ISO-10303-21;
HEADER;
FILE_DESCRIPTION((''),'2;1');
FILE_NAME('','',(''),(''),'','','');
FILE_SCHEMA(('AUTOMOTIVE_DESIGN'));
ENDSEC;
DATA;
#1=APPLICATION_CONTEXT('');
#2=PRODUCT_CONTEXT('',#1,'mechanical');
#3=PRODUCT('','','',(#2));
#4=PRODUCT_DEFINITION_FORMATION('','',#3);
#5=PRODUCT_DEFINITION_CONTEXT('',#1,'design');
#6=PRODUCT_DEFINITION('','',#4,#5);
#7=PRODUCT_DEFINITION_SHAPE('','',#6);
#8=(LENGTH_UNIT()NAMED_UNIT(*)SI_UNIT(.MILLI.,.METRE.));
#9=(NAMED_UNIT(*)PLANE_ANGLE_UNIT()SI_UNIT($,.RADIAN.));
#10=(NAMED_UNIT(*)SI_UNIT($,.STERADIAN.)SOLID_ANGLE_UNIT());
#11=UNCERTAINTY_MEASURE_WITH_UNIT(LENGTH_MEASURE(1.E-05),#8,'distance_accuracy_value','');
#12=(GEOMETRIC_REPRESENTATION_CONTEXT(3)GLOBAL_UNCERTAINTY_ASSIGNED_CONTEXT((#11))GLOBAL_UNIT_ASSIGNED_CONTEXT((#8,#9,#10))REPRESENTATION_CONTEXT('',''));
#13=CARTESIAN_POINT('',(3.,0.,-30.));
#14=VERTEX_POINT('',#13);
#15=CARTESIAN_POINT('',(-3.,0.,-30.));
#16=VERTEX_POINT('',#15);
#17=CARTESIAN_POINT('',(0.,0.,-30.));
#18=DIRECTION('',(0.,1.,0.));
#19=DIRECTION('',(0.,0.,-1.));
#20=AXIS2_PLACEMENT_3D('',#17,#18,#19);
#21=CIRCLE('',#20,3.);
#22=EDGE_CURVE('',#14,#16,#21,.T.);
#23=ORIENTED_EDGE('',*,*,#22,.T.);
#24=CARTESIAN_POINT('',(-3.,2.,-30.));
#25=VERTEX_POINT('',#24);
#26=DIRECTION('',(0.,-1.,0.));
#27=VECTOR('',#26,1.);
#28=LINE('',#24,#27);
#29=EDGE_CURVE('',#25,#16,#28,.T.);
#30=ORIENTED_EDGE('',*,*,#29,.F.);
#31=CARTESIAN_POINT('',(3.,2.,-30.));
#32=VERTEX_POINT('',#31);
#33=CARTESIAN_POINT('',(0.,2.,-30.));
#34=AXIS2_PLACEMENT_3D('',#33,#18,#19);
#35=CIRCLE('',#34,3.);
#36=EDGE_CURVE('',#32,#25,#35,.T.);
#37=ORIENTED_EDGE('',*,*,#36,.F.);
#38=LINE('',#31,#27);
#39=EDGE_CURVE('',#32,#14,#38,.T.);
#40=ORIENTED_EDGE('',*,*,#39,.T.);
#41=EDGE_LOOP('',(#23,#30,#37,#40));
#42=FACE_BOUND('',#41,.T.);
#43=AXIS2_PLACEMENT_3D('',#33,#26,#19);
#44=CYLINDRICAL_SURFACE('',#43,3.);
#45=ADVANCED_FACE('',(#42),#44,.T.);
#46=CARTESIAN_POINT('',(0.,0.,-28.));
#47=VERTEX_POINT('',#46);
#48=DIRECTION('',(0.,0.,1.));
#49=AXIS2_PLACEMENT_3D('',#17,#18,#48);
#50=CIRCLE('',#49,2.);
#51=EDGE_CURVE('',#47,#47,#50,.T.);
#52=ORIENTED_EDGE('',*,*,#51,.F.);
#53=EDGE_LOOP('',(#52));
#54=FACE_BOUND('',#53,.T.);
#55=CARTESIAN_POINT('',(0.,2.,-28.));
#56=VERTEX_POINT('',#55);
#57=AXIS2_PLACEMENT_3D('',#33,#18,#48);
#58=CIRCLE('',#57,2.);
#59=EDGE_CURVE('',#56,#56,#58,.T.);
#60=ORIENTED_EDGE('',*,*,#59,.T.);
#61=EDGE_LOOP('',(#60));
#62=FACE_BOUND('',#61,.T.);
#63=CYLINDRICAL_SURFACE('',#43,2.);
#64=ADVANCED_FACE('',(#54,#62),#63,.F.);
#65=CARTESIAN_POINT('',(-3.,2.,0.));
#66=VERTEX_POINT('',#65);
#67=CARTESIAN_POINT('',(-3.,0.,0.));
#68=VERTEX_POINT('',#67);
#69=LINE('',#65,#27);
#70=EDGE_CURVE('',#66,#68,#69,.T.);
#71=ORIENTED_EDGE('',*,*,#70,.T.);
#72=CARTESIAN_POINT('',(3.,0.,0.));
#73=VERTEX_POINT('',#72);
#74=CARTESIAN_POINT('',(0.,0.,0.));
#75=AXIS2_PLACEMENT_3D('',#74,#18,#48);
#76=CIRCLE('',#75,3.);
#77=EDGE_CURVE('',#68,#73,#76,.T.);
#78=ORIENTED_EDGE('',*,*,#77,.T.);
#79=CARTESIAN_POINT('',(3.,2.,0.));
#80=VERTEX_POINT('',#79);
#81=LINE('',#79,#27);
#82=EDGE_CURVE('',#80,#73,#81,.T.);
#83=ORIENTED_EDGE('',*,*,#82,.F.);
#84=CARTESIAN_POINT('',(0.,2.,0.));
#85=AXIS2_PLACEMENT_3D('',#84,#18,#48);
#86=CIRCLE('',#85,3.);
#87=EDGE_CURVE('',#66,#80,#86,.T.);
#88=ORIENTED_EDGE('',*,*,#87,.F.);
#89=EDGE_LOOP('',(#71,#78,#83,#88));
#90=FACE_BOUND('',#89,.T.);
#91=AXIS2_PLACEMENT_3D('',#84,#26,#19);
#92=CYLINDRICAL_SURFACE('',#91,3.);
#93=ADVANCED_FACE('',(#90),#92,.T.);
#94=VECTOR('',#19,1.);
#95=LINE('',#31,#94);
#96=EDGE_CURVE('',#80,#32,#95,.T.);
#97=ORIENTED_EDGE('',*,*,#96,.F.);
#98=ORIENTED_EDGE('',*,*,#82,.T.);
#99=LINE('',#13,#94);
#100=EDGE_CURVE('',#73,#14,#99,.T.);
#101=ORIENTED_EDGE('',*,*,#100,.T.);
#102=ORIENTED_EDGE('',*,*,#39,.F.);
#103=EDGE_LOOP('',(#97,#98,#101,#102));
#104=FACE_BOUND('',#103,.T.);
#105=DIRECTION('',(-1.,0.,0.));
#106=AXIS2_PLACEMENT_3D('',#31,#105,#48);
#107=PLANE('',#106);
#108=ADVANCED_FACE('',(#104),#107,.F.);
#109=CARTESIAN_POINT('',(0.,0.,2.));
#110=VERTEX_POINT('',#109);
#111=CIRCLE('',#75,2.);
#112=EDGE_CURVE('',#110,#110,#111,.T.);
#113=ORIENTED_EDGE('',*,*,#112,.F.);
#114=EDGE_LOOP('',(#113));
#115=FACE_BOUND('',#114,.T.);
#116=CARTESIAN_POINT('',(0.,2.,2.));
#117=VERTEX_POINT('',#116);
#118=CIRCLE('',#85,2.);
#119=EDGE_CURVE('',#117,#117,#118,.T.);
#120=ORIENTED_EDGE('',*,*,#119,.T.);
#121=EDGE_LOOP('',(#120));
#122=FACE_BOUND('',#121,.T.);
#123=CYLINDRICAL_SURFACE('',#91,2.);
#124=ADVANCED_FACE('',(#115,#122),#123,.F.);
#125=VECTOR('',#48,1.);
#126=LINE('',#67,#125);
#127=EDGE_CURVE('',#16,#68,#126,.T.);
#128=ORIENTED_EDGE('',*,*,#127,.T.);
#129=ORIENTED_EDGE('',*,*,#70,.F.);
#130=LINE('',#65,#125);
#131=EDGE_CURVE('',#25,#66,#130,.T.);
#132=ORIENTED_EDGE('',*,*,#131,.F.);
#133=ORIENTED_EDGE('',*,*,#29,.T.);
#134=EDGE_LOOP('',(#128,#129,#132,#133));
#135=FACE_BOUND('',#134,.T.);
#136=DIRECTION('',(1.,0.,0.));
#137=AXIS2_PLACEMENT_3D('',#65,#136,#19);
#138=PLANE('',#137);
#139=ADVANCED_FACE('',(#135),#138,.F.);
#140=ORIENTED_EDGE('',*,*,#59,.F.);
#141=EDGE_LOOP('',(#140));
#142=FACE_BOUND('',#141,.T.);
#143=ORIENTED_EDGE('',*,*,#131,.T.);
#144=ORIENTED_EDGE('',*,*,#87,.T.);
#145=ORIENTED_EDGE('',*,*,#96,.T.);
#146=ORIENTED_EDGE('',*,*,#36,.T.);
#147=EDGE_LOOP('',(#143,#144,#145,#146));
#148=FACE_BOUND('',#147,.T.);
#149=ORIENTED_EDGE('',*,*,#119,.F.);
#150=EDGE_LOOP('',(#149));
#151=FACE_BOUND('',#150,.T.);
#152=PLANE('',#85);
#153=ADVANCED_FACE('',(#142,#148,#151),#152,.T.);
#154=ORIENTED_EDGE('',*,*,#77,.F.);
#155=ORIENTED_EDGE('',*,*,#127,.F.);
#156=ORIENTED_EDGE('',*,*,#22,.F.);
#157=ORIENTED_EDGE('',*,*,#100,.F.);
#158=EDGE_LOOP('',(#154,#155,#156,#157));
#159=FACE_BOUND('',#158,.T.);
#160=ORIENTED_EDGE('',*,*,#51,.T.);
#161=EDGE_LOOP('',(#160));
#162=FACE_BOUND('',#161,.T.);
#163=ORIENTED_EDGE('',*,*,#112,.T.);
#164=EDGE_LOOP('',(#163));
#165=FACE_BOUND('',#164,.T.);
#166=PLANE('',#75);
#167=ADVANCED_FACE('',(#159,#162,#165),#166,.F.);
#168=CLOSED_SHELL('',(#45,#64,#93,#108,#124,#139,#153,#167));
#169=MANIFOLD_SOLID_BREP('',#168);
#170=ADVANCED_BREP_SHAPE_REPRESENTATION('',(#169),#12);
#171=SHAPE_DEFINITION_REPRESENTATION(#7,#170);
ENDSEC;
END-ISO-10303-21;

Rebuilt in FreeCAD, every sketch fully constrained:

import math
import FreeCAD as App
import Part
import Sketcher
from FreeCAD import Vector
Q = App.Units.Quantity

doc = App.newDocument("Part")
body = doc.addObject("PartDesign::Body", "Body")

sketch1 = doc.addObject("Sketcher::SketchObject", "Sketch")
body.addObject(sketch1)
sketch1.AttachmentSupport = (doc.XZ_Plane, [""])
sketch1.MapMode = "FlatFace"
sketch1.addGeometry(Part.LineSegment(Vector(-3, -30, 0), Vector(-3, 0, 0)), False)
sketch1.addGeometry(Part.ArcOfCircle(Part.Circle(Vector(0, 0, 0), Vector(0, 0, 1), 3), math.radians(0), math.radians(180)), False)
sketch1.addGeometry(Part.LineSegment(Vector(3, 0, 0), Vector(3, -30, 0)), False)
sketch1.addGeometry(Part.ArcOfCircle(Part.Circle(Vector(0, -30, 0), Vector(0, 0, 1), 3), math.radians(180), math.radians(360)), False)
sketch1.addGeometry(Part.Circle(Vector(0, 0, 0), Vector(0, 0, 1), 2), False)
sketch1.addGeometry(Part.Circle(Vector(0, -30, 0), Vector(0, 0, 1), 2), False)
sketch1.addConstraint(Sketcher.Constraint("Tangent", 0, 2, 1, 2))
sketch1.addConstraint(Sketcher.Constraint("Tangent", 1, 1, 2, 1))
sketch1.addConstraint(Sketcher.Constraint("Tangent", 2, 2, 3, 2))
sketch1.addConstraint(Sketcher.Constraint("Tangent", 3, 1, 0, 1))
sketch1.addConstraint(Sketcher.Constraint("Vertical", 0))
sketch1.addConstraint(Sketcher.Constraint("Vertical", 2))
sketch1.addConstraint(Sketcher.Constraint("Coincident", 1, 3, -1, 1))
sketch1.addConstraint(Sketcher.Constraint("Coincident", 4, 3, -1, 1))
sketch1.addConstraint(Sketcher.Constraint("Coincident", 5, 3, 3, 3))
sketch1.addConstraint(Sketcher.Constraint("Equal", 4, 5))
sketch1.addConstraint(Sketcher.Constraint("Diameter", 4, Q("4 mm")))
sketch1.addConstraint(Sketcher.Constraint("Radius", 1, Q("3 mm")))
sketch1.addConstraint(Sketcher.Constraint("DistanceY", 0, 1, 0, 2, Q("30 mm")))
pad1 = doc.addObject("PartDesign::Pad", "Pad")
body.addObject(pad1)
pad1.Profile = sketch1
pad1.Length = 2
pad1.Reversed = True

doc.recompute()
